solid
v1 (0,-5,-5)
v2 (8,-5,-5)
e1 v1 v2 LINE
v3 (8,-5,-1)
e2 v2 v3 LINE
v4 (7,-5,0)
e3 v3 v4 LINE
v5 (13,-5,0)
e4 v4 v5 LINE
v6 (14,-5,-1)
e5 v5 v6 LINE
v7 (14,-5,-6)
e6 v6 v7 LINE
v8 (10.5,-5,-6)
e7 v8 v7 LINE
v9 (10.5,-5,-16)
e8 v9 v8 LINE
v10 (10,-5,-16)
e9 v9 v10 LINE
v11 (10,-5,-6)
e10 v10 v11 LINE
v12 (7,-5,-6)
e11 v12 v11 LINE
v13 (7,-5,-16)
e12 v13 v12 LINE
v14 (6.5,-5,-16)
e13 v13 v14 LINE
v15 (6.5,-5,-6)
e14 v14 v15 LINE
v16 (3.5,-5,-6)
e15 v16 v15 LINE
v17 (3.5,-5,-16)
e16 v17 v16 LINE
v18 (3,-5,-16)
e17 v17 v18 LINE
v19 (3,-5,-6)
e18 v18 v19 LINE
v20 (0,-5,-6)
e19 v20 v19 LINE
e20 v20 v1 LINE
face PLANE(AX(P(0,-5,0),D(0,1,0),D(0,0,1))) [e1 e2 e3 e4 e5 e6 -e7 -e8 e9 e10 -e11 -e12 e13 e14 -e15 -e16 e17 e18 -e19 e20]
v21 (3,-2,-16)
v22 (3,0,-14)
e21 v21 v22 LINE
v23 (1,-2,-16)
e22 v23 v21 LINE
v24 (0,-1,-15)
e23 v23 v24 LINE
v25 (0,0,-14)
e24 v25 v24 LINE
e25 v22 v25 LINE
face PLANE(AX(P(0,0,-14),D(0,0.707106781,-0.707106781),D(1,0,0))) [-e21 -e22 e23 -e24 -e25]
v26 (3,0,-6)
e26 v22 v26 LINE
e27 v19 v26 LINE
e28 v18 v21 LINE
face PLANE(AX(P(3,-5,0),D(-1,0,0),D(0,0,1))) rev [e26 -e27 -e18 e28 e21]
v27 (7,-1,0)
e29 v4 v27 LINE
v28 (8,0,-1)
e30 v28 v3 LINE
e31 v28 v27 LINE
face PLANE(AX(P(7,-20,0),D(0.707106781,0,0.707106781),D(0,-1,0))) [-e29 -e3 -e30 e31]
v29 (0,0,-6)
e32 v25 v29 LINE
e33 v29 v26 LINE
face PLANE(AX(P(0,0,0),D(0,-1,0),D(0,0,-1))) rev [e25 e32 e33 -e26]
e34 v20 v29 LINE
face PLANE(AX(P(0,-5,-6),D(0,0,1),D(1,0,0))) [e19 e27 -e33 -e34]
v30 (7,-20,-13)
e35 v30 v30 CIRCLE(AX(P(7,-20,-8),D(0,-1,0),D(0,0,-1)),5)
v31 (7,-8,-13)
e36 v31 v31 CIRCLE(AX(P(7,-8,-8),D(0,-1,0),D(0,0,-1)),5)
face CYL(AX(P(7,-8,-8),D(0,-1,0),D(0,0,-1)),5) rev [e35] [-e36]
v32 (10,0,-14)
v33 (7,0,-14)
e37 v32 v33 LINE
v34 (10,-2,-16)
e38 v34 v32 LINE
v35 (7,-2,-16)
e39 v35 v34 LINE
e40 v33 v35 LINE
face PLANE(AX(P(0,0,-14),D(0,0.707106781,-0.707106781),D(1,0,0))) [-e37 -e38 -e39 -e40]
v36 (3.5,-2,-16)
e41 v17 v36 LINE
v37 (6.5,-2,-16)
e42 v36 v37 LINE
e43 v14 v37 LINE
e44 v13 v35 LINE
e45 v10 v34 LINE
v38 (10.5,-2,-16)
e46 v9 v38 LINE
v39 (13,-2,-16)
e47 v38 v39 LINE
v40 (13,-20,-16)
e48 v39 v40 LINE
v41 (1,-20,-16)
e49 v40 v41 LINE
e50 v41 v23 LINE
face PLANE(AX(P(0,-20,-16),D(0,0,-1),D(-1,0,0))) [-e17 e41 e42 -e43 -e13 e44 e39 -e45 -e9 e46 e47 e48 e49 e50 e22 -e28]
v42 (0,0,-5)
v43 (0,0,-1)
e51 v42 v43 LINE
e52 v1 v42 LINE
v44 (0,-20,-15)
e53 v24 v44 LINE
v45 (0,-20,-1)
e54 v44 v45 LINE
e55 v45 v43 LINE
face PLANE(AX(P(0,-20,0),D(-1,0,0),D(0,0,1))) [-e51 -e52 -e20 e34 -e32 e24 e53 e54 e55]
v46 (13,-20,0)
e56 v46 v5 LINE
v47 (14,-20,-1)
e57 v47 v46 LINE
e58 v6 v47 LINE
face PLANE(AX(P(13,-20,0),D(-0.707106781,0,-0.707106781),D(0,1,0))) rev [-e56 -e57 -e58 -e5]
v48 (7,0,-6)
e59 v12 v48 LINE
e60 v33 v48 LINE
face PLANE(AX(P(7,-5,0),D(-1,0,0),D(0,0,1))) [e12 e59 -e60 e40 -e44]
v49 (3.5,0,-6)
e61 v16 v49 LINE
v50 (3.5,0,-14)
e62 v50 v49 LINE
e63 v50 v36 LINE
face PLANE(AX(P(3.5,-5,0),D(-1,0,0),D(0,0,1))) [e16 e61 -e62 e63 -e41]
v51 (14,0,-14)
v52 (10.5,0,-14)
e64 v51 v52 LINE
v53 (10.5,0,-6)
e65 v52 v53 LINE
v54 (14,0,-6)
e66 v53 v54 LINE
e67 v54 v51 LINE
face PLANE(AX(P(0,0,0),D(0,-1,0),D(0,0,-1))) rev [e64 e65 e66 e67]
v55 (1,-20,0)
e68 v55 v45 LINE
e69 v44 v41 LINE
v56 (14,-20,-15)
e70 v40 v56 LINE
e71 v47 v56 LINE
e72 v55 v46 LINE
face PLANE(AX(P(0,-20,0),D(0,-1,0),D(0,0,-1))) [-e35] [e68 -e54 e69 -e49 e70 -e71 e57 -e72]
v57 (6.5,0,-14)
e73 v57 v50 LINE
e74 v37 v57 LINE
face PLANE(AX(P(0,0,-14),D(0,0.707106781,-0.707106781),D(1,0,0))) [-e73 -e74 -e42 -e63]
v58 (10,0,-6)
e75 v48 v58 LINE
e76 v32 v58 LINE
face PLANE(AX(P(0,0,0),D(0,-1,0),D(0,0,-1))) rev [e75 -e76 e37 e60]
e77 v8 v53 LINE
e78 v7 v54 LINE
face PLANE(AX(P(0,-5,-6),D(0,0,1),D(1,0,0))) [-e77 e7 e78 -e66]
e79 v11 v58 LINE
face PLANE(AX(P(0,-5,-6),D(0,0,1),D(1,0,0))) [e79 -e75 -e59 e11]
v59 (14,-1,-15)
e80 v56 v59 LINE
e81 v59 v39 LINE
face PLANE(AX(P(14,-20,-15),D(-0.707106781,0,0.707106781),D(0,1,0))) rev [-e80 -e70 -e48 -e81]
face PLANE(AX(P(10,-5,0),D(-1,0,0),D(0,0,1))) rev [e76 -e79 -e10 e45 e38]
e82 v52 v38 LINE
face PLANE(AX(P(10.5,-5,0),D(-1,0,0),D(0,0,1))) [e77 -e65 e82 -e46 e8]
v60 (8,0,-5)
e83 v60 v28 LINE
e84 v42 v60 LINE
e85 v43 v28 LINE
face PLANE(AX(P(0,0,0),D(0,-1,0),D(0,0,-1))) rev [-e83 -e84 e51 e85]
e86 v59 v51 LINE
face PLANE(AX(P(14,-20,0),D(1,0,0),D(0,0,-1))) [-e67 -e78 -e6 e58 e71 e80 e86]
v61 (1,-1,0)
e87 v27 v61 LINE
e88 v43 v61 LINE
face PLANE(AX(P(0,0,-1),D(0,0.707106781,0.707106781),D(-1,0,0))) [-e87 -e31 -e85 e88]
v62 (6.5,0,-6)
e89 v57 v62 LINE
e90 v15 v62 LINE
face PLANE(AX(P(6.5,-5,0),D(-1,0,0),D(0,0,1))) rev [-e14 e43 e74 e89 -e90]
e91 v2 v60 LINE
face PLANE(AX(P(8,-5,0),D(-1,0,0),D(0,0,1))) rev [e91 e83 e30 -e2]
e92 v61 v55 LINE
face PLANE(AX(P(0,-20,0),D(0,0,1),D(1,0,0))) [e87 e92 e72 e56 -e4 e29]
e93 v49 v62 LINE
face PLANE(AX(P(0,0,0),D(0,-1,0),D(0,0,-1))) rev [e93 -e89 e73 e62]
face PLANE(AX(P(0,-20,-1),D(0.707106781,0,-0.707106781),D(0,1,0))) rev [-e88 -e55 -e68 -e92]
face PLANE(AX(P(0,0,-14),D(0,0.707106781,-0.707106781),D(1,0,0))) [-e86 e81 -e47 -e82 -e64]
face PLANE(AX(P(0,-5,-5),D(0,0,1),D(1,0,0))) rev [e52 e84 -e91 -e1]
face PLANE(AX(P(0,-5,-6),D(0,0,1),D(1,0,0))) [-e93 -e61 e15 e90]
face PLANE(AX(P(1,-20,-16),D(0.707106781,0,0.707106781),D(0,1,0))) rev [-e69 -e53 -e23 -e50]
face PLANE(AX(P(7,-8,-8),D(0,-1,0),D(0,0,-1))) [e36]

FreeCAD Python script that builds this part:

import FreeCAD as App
import Part
import Sketcher
from FreeCAD import Vector


def edges_at(feature, points):
    """Names of the edges that pass closest to the given points."""
    edges = feature.Shape.Edges
    near = lambda p: min(range(len(edges)), key=lambda i: edges[i].distToShape(Part.Vertex(*p))[0])
    return sorted({f"Edge{near(p) + 1}" for p in points})


def add_polygon(sketch, points):
    """Adds a closed chain of lines whose ends are joined by coincident constraints."""
    first, n = sketch.GeometryCount, len(points)
    for a, b in zip(points, points[1:] + points[:1]):
        sketch.addGeometry(Part.LineSegment(App.Vector(*a, 0), App.Vector(*b, 0)), False)
    for i in range(n):
        sketch.addConstraint(Sketcher.Constraint("Coincident", first + i, 2, first + (i + 1) % n, 1))

doc = App.newDocument("Part")
body = doc.addObject("PartDesign::Body", "Body")

# Sketch on XZ plane
sketch1 = body.newObject("Sketcher::SketchObject", "Sketch")
sketch1.AttachmentSupport = (doc.getObject("XZ_Plane"), [""])
sketch1.MapMode = "FlatFace"
add_polygon(sketch1, [(0, -16), (0, 0), (14, 0), (14, -16)])  # lines 0-3
sketch1.addConstraint(Sketcher.Constraint("Vertical", 0))
sketch1.addConstraint(Sketcher.Constraint("Horizontal", 1))
sketch1.addConstraint(Sketcher.Constraint("Vertical", 2))
sketch1.addConstraint(Sketcher.Constraint("Horizontal", 3))
sketch1.addConstraint(Sketcher.Constraint("Coincident", 0, 2, -1, 1))
sketch1.addConstraint(Sketcher.Constraint("DistanceX", 1, 1, 1, 2, 14.0))
sketch1.addConstraint(Sketcher.Constraint("DistanceY", 0, 1, 0, 2, 16.0))
pad1 = body.newObject("PartDesign::Pad", "Pad")
pad1.Profile = sketch1
pad1.Length = 20

# Sketch on XZ plane
sketch2 = body.newObject("Sketcher::SketchObject", "Sketch001")
sketch2.AttachmentSupport = (doc.getObject("XZ_Plane"), [""])
sketch2.MapMode = "FlatFace"
add_polygon(sketch2, [(3, -6), (0, -6), (0, -5), (8, -5), (8, 0), (14, 0), (14, -6), (10.5, -6), (10.5, -16), (10, -16), (10, -6), (7, -6), (7, -16), (6.5, -16), (6.5, -6), (3.5, -6), (3.5, -16), (3, -16)])  # lines 0-17
sketch2.addConstraint(Sketcher.Constraint("Horizontal", 0))
sketch2.addConstraint(Sketcher.Constraint("Vertical", 1))
sketch2.addConstraint(Sketcher.Constraint("Horizontal", 2))
sketch2.addConstraint(Sketcher.Constraint("Vertical", 3))
sketch2.addConstraint(Sketcher.Constraint("Horizontal", 4))
sketch2.addConstraint(Sketcher.Constraint("Vertical", 5))
sketch2.addConstraint(Sketcher.Constraint("Horizontal", 6))
sketch2.addConstraint(Sketcher.Constraint("Vertical", 7))
sketch2.addConstraint(Sketcher.Constraint("Horizontal", 8))
sketch2.addConstraint(Sketcher.Constraint("Vertical", 9))
sketch2.addConstraint(Sketcher.Constraint("Horizontal", 10))
sketch2.addConstraint(Sketcher.Constraint("Vertical", 11))
sketch2.addConstraint(Sketcher.Constraint("Horizontal", 12))
sketch2.addConstraint(Sketcher.Constraint("Vertical", 13))
sketch2.addConstraint(Sketcher.Constraint("Horizontal", 14))
sketch2.addConstraint(Sketcher.Constraint("Vertical", 15))
sketch2.addConstraint(Sketcher.Constraint("Horizontal", 16))
sketch2.addConstraint(Sketcher.Constraint("Vertical", 17))
sketch2.addConstraint(Sketcher.Constraint("PointOnObject", 0, 2, -2))
sketch2.addConstraint(Sketcher.Constraint("PointOnObject", 3, 2, -1))
sketch2.addConstraint(Sketcher.Constraint("Horizontal", 0, 2, 5, 2))
sketch2.addConstraint(Sketcher.Constraint("Horizontal", 6, 2, 9, 2))
sketch2.addConstraint(Sketcher.Constraint("Horizontal", 8, 2, 11, 2))
sketch2.addConstraint(Sketcher.Constraint("Horizontal", 10, 2, 13, 2))
sketch2.addConstraint(Sketcher.Constraint("Horizontal", 12, 2, 15, 2))
sketch2.addConstraint(Sketcher.Constraint("Equal", 0, 10))
sketch2.addConstraint(Sketcher.Constraint("Equal", 8, 12))
sketch2.addConstraint(Sketcher.Constraint("Equal", 10, 14))
sketch2.addConstraint(Sketcher.Constraint("Equal", 12, 16))
sketch2.addConstraint(Sketcher.Constraint("Equal", 4, 5))
sketch2.addConstraint(Sketcher.Constraint("DistanceX", 0, 2, 0, 1, 3.0))
sketch2.addConstraint(Sketcher.Constraint("DistanceX", 2, 1, 2, 2, 8.0))
sketch2.addConstraint(Sketcher.Constraint("DistanceX", 4, 1, 4, 2, 6.0))
sketch2.addConstraint(Sketcher.Constraint("DistanceY", 1, 1, 1, 2, 1.0))
sketch2.addConstraint(Sketcher.Constraint("DistanceY", 7, 2, 7, 1, 10.0))
sketch2.addConstraint(Sketcher.Constraint("DistanceX", 6, 2, 6, 1, 3.5))
pocket1 = body.newObject("PartDesign::Pocket", "Pocket")
pocket1.Profile = sketch2
pocket1.Length = 5
pocket1.Reversed = True
doc.recompute()

chamfer = body.newObject("PartDesign::Chamfer", "Chamfer")
chamfer.Base = (pocket1, edges_at(pocket1, [
    (8.5, 0, -16),
    (5, 0, -16),
    (1.5, 0, -16),
    (12.25, 0, -16),
]))
chamfer.Size = 2
doc.recompute()

chamfer2 = body.newObject("PartDesign::Chamfer", "Chamfer001")
chamfer2.Base = (chamfer, edges_at(chamfer, [
    (8, -2.5, 0),
    (4, 0, 0),
    (0, -11, -16),
    (14, -11, -16),
    (14, -12.5, 0),
    (0, -10, 0),
]))
chamfer2.Size = 1

# Sketch on XZ plane
sketch3 = body.newObject("Sketcher::SketchObject", "Sketch002")
sketch3.AttachmentSupport = (doc.getObject("XZ_Plane"), [""])
sketch3.MapMode = "FlatFace"
sketch3.AttachmentOffset = App.Placement(Vector(0, 0, 20), App.Rotation())
sketch3.addGeometry(Part.Circle(Vector(7, -8, 0), Vector(0, 0, 1), 5), False)
sketch3.addConstraint(Sketcher.Constraint("Diameter", 0, 10.0))
sketch3.addConstraint(Sketcher.Constraint("DistanceX", -1, 1, 0, 3, 7.0))
sketch3.addConstraint(Sketcher.Constraint("DistanceY", 0, 3, -1, 1, 8.0))
pocket2 = body.newObject("PartDesign::Pocket", "Pocket001")
pocket2.Profile = sketch3
pocket2.Length = 12

doc.recompute()
